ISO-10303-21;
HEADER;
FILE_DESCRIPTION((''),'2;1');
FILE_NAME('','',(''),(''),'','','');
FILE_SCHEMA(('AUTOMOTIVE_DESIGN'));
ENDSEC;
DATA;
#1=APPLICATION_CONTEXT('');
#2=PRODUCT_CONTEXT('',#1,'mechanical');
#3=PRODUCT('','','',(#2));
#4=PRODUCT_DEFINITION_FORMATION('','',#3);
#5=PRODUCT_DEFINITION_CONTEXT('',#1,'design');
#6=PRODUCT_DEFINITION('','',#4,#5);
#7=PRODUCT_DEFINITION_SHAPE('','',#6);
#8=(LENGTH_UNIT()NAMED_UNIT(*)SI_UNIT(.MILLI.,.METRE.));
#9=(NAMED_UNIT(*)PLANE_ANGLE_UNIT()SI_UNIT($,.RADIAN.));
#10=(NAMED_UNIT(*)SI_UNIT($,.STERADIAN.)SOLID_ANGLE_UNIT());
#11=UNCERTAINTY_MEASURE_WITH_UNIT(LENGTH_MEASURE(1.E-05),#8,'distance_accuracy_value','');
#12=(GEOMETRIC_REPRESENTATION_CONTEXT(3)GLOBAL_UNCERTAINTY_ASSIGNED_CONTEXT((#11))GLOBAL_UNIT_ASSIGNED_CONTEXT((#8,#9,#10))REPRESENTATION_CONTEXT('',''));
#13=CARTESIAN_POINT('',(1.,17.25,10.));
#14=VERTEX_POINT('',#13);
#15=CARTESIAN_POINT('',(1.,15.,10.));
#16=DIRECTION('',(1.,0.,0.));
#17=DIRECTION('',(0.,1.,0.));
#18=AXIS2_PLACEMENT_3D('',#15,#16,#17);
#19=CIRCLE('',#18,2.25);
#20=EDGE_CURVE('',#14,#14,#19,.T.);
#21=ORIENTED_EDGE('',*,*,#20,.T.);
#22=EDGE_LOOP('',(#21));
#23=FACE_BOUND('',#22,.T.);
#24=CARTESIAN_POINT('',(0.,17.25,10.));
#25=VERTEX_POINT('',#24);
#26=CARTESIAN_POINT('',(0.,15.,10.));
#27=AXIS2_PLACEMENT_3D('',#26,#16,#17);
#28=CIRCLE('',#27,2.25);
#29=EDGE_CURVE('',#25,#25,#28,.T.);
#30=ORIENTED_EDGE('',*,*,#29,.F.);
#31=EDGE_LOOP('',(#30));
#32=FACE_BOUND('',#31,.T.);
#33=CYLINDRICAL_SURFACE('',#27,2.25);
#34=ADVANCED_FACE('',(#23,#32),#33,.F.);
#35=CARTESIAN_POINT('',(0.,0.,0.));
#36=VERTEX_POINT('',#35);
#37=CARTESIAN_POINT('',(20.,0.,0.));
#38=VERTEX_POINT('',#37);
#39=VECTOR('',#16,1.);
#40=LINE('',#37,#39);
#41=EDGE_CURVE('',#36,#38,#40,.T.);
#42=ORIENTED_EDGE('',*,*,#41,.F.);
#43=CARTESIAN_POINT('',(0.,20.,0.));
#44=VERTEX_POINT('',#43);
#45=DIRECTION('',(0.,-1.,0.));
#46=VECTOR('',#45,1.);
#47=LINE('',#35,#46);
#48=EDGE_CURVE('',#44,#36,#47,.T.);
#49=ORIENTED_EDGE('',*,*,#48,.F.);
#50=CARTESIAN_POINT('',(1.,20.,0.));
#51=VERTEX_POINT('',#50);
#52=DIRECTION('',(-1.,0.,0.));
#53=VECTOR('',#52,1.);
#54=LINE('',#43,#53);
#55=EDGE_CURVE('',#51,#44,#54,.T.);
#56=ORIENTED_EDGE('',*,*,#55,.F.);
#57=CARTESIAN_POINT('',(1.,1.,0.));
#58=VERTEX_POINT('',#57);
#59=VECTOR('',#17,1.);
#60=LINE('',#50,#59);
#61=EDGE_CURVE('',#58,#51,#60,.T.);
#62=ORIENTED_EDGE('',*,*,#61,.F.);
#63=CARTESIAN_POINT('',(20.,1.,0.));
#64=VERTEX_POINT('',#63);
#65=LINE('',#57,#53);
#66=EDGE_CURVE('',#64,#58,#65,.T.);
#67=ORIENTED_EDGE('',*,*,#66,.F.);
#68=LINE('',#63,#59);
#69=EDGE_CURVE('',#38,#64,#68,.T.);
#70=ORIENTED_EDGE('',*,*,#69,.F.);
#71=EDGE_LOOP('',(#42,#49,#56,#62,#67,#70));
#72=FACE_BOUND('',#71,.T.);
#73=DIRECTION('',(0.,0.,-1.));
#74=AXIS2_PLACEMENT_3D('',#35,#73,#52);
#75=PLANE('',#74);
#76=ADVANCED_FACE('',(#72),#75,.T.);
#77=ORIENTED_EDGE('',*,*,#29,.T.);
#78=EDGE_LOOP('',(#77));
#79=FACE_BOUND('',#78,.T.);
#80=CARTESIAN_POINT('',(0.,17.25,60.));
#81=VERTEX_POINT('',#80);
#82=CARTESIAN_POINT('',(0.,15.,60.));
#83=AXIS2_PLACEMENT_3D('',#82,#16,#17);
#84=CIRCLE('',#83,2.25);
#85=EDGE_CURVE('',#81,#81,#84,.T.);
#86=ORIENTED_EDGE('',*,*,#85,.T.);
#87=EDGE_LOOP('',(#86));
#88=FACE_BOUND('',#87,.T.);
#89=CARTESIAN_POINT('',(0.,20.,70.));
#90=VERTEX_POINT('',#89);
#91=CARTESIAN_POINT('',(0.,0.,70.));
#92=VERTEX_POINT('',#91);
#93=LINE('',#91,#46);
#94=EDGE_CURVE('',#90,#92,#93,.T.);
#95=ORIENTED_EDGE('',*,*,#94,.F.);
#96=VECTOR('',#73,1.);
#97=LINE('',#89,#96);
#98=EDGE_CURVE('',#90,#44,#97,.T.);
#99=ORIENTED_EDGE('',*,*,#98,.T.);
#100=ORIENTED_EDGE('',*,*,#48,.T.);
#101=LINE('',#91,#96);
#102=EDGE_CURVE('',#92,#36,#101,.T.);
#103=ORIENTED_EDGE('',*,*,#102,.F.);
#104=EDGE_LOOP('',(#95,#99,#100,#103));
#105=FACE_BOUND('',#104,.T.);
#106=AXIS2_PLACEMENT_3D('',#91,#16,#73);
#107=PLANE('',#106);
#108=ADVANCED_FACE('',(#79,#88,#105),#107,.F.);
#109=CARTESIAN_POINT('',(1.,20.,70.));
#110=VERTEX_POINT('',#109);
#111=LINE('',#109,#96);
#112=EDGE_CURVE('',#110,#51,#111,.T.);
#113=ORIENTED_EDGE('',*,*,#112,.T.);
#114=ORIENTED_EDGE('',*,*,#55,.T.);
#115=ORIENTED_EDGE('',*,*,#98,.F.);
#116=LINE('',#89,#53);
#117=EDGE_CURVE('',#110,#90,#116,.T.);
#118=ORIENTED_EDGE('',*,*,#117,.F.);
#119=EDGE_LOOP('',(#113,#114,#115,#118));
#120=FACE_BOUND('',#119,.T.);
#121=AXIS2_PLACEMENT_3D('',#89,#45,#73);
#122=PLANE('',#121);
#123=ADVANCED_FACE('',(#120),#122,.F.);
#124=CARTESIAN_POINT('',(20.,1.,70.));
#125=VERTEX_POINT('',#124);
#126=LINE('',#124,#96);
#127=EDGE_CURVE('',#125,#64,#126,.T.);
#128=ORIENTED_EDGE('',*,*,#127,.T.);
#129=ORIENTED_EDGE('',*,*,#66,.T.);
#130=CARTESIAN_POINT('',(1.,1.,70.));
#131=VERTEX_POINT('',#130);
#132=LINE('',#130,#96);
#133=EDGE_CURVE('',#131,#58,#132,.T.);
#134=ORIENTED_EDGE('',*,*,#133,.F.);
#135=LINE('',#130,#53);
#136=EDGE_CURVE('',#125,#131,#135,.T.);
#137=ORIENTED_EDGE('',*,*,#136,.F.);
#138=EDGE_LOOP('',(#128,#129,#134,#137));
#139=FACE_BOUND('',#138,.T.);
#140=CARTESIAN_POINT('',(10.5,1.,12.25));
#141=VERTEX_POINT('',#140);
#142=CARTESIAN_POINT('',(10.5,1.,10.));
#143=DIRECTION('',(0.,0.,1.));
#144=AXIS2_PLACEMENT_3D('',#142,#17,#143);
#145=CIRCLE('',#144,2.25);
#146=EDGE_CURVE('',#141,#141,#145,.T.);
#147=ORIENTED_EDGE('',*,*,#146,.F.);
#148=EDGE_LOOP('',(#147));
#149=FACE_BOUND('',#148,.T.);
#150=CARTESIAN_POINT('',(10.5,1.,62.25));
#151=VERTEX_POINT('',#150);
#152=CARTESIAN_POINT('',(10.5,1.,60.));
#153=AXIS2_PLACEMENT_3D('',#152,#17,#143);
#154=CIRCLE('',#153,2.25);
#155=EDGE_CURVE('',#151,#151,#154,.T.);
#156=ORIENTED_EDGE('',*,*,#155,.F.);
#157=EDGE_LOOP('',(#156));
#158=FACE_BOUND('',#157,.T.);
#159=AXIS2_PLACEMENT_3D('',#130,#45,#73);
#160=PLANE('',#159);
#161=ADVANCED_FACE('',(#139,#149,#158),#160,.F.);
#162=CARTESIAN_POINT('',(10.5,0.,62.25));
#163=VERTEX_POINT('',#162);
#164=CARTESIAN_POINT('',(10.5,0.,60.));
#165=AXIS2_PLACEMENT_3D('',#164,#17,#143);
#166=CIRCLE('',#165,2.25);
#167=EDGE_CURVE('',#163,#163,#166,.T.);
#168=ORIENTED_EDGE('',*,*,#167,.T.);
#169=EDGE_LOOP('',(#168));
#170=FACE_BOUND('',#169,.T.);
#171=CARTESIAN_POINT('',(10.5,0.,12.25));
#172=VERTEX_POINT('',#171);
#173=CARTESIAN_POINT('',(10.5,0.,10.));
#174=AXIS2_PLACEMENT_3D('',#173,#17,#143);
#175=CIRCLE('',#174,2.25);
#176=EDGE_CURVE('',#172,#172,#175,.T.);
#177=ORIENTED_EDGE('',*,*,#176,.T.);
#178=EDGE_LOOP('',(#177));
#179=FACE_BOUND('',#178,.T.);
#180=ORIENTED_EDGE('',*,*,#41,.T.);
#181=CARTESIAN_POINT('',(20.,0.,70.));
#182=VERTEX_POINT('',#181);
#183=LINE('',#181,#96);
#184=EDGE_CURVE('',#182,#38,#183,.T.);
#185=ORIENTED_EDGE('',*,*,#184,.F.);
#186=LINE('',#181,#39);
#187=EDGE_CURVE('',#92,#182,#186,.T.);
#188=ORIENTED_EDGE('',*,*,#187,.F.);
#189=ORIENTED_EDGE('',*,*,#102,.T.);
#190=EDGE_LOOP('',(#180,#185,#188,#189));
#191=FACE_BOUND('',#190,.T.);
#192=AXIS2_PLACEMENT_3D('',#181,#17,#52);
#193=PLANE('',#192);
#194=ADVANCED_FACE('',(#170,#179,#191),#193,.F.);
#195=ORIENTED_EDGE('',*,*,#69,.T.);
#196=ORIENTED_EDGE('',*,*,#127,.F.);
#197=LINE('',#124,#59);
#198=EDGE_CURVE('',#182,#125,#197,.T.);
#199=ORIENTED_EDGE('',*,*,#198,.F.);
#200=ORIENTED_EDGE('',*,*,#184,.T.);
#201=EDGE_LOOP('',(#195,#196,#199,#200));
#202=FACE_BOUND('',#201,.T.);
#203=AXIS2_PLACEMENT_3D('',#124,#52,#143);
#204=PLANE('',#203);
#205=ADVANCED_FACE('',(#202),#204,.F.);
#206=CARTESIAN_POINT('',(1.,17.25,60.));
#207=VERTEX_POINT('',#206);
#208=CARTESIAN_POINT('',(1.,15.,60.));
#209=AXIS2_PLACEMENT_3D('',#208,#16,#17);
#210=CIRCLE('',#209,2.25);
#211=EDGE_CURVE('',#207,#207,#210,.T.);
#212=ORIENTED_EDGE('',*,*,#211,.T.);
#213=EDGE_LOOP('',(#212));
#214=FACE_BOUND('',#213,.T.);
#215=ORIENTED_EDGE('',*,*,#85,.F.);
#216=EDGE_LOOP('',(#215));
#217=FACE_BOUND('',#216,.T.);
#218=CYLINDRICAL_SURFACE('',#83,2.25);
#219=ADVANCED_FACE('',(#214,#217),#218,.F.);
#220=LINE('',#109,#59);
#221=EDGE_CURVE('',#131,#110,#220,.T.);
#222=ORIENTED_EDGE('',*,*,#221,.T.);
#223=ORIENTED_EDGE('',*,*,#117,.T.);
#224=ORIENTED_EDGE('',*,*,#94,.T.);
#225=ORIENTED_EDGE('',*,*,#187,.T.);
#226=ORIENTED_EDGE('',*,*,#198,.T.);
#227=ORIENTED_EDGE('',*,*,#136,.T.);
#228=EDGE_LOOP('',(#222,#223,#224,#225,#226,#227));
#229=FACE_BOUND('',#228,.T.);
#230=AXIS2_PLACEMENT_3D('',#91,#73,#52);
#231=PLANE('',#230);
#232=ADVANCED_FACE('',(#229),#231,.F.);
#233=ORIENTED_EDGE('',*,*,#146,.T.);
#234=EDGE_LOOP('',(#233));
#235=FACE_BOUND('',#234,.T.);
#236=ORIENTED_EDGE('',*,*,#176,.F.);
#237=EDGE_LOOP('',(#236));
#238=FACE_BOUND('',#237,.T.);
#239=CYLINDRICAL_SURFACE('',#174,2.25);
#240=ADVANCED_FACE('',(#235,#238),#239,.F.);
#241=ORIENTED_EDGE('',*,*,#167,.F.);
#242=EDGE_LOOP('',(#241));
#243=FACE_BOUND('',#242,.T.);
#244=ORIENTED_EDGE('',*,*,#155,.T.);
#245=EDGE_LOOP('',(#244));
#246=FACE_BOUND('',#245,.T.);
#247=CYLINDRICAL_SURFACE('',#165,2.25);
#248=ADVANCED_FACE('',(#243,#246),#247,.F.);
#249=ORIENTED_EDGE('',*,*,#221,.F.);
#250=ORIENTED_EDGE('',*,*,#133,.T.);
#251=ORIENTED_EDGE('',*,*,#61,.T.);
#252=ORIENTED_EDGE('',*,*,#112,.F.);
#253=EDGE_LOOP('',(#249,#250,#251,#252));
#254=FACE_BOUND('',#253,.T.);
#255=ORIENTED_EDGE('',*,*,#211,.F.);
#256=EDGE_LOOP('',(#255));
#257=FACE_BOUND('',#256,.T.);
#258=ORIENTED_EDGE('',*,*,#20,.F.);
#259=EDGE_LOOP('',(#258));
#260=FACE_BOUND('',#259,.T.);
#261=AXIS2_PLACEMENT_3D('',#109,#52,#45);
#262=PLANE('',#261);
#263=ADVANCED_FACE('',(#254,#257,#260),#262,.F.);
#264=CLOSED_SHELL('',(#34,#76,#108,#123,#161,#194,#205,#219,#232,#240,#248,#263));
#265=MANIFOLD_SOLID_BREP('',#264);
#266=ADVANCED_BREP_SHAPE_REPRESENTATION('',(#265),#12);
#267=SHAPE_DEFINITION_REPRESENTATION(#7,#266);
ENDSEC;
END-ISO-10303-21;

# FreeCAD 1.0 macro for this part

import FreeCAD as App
import Part
import Sketcher
from FreeCAD import Vector


def add_polygon(sketch, points):
    """Adds a closed chain of lines whose ends are joined by coincident constraints."""
    first, n = sketch.GeometryCount, len(points)
    for a, b in zip(points, points[1:] + points[:1]):
        sketch.addGeometry(Part.LineSegment(App.Vector(*a, 0), App.Vector(*b, 0)), False)
    for i in range(n):
        sketch.addConstraint(Sketcher.Constraint("Coincident", first + i, 2, first + (i + 1) % n, 1))

doc = App.newDocument("Part")
params = doc.addObject("Spreadsheet::Sheet", "Params")
for row, (alias, value) in enumerate([
    ("sketch1_width", "20 mm"),
    ("sketch1_width2", "19 mm"),
    ("pad1_length", "70 mm"),
    ("sketch2_diameter", "4.5 mm"),
    ("sketch3_diameter", "4.5 mm"),
], start=1):
    params.set(f"A{row}", alias)
    params.set(f"B{row}", "=" + value)
    params.setAlias(f"B{row}", alias)

body = doc.addObject("PartDesign::Body", "Body")

# Sketch on XY plane
sketch1 = doc.addObject("Sketcher::SketchObject", "Sketch")
body.addObject(sketch1)
sketch1.AttachmentSupport = (doc.XY_Plane, [""])
sketch1.MapMode = "FlatFace"
add_polygon(sketch1, [(0, 20), (0, 0), (20, 0), (20, 1), (1, 1), (1, 20)])  # lines 0-5
sketch1.addConstraint([
    Sketcher.Constraint("Vertical", 0),
    Sketcher.Constraint("Horizontal", 1),
    Sketcher.Constraint("Vertical", 2),
    Sketcher.Constraint("Horizontal", 3),
    Sketcher.Constraint("Vertical", 4),
    Sketcher.Constraint("Horizontal", 5),
    Sketcher.Constraint("Coincident", 0, 2, -1, 1),
    Sketcher.Constraint("Equal", 1, 0),
    Sketcher.Constraint("Equal", 5, 2),
    Sketcher.Constraint("DistanceX", 1, 1, 1, 2, 20.0),
    Sketcher.Constraint("DistanceX", 3, 2, 3, 1, 19.0),
])
sketch1.setExpression("Constraints[15]", "Params.sketch1_width")
sketch1.setExpression("Constraints[16]", "Params.sketch1_width2")
pad1 = doc.addObject("PartDesign::Pad", "Pad")
body.addObject(pad1)
pad1.Profile = sketch1
pad1.setExpression("Length", "Params.pad1_length")

# Sketch on XZ plane
sketch2 = doc.addObject("Sketcher::SketchObject", "Sketch001")
body.addObject(sketch2)
sketch2.AttachmentSupport = (doc.XZ_Plane, [""])
sketch2.MapMode = "FlatFace"
sketch2.AttachmentOffset = App.Placement(Vector(0, 0, -1), App.Rotation())
sketch2.addGeometry([
    Part.Circle(Vector(10.5, 10, 0), Vector(0, 0, 1), 2.25),
    Part.Circle(Vector(10.5, 60, 0), Vector(0, 0, 1), 2.25),
], False)
sketch2.addConstraint([
    Sketcher.Constraint("Equal", 0, 1),
    Sketcher.Constraint("Vertical", 0, 3, 1, 3),
    Sketcher.Constraint("Diameter", 0, 4.5),
    Sketcher.Constraint("DistanceY", -1, 1, 0, 3, 10.0),
    Sketcher.Constraint("DistanceY", -1, 1, 1, 3, 60.0),
    Sketcher.Constraint("DistanceX", -1, 1, 0, 3, 10.5),
])
sketch2.setExpression("Constraints[2]", "Params.sketch2_diameter")
pocket1 = doc.addObject("PartDesign::Pocket", "Pocket")
body.addObject(pocket1)
pocket1.Profile = sketch2
pocket1.Type = "ThroughAll"
pocket1.Reversed = True

# Sketch on YZ plane
sketch3 = doc.addObject("Sketcher::SketchObject", "Sketch002")
body.addObject(sketch3)
sketch3.AttachmentSupport = (doc.YZ_Plane, [""])
sketch3.MapMode = "FlatFace"
sketch3.AttachmentOffset = App.Placement(Vector(0, 0, 1), App.Rotation())
sketch3.addGeometry([
    Part.Circle(Vector(15, 10, 0), Vector(0, 0, 1), 2.25),
    Part.Circle(Vector(15, 60, 0), Vector(0, 0, 1), 2.25),
], False)
sketch3.addConstraint([
    Sketcher.Constraint("Equal", 0, 1),
    Sketcher.Constraint("Vertical", 0, 3, 1, 3),
    Sketcher.Constraint("Diameter", 0, 4.5),
    Sketcher.Constraint("DistanceX", -1, 1, 0, 3, 15.0),
    Sketcher.Constraint("DistanceY", -1, 1, 0, 3, 10.0),
    Sketcher.Constraint("DistanceY", -1, 1, 1, 3, 60.0),
])
sketch3.setExpression("Constraints[2]", "Params.sketch3_diameter")
pocket2 = doc.addObject("PartDesign::Pocket", "Pocket001")
body.addObject(pocket2)
pocket2.Profile = sketch3
pocket2.Type = "ThroughAll"

doc.recompute()
